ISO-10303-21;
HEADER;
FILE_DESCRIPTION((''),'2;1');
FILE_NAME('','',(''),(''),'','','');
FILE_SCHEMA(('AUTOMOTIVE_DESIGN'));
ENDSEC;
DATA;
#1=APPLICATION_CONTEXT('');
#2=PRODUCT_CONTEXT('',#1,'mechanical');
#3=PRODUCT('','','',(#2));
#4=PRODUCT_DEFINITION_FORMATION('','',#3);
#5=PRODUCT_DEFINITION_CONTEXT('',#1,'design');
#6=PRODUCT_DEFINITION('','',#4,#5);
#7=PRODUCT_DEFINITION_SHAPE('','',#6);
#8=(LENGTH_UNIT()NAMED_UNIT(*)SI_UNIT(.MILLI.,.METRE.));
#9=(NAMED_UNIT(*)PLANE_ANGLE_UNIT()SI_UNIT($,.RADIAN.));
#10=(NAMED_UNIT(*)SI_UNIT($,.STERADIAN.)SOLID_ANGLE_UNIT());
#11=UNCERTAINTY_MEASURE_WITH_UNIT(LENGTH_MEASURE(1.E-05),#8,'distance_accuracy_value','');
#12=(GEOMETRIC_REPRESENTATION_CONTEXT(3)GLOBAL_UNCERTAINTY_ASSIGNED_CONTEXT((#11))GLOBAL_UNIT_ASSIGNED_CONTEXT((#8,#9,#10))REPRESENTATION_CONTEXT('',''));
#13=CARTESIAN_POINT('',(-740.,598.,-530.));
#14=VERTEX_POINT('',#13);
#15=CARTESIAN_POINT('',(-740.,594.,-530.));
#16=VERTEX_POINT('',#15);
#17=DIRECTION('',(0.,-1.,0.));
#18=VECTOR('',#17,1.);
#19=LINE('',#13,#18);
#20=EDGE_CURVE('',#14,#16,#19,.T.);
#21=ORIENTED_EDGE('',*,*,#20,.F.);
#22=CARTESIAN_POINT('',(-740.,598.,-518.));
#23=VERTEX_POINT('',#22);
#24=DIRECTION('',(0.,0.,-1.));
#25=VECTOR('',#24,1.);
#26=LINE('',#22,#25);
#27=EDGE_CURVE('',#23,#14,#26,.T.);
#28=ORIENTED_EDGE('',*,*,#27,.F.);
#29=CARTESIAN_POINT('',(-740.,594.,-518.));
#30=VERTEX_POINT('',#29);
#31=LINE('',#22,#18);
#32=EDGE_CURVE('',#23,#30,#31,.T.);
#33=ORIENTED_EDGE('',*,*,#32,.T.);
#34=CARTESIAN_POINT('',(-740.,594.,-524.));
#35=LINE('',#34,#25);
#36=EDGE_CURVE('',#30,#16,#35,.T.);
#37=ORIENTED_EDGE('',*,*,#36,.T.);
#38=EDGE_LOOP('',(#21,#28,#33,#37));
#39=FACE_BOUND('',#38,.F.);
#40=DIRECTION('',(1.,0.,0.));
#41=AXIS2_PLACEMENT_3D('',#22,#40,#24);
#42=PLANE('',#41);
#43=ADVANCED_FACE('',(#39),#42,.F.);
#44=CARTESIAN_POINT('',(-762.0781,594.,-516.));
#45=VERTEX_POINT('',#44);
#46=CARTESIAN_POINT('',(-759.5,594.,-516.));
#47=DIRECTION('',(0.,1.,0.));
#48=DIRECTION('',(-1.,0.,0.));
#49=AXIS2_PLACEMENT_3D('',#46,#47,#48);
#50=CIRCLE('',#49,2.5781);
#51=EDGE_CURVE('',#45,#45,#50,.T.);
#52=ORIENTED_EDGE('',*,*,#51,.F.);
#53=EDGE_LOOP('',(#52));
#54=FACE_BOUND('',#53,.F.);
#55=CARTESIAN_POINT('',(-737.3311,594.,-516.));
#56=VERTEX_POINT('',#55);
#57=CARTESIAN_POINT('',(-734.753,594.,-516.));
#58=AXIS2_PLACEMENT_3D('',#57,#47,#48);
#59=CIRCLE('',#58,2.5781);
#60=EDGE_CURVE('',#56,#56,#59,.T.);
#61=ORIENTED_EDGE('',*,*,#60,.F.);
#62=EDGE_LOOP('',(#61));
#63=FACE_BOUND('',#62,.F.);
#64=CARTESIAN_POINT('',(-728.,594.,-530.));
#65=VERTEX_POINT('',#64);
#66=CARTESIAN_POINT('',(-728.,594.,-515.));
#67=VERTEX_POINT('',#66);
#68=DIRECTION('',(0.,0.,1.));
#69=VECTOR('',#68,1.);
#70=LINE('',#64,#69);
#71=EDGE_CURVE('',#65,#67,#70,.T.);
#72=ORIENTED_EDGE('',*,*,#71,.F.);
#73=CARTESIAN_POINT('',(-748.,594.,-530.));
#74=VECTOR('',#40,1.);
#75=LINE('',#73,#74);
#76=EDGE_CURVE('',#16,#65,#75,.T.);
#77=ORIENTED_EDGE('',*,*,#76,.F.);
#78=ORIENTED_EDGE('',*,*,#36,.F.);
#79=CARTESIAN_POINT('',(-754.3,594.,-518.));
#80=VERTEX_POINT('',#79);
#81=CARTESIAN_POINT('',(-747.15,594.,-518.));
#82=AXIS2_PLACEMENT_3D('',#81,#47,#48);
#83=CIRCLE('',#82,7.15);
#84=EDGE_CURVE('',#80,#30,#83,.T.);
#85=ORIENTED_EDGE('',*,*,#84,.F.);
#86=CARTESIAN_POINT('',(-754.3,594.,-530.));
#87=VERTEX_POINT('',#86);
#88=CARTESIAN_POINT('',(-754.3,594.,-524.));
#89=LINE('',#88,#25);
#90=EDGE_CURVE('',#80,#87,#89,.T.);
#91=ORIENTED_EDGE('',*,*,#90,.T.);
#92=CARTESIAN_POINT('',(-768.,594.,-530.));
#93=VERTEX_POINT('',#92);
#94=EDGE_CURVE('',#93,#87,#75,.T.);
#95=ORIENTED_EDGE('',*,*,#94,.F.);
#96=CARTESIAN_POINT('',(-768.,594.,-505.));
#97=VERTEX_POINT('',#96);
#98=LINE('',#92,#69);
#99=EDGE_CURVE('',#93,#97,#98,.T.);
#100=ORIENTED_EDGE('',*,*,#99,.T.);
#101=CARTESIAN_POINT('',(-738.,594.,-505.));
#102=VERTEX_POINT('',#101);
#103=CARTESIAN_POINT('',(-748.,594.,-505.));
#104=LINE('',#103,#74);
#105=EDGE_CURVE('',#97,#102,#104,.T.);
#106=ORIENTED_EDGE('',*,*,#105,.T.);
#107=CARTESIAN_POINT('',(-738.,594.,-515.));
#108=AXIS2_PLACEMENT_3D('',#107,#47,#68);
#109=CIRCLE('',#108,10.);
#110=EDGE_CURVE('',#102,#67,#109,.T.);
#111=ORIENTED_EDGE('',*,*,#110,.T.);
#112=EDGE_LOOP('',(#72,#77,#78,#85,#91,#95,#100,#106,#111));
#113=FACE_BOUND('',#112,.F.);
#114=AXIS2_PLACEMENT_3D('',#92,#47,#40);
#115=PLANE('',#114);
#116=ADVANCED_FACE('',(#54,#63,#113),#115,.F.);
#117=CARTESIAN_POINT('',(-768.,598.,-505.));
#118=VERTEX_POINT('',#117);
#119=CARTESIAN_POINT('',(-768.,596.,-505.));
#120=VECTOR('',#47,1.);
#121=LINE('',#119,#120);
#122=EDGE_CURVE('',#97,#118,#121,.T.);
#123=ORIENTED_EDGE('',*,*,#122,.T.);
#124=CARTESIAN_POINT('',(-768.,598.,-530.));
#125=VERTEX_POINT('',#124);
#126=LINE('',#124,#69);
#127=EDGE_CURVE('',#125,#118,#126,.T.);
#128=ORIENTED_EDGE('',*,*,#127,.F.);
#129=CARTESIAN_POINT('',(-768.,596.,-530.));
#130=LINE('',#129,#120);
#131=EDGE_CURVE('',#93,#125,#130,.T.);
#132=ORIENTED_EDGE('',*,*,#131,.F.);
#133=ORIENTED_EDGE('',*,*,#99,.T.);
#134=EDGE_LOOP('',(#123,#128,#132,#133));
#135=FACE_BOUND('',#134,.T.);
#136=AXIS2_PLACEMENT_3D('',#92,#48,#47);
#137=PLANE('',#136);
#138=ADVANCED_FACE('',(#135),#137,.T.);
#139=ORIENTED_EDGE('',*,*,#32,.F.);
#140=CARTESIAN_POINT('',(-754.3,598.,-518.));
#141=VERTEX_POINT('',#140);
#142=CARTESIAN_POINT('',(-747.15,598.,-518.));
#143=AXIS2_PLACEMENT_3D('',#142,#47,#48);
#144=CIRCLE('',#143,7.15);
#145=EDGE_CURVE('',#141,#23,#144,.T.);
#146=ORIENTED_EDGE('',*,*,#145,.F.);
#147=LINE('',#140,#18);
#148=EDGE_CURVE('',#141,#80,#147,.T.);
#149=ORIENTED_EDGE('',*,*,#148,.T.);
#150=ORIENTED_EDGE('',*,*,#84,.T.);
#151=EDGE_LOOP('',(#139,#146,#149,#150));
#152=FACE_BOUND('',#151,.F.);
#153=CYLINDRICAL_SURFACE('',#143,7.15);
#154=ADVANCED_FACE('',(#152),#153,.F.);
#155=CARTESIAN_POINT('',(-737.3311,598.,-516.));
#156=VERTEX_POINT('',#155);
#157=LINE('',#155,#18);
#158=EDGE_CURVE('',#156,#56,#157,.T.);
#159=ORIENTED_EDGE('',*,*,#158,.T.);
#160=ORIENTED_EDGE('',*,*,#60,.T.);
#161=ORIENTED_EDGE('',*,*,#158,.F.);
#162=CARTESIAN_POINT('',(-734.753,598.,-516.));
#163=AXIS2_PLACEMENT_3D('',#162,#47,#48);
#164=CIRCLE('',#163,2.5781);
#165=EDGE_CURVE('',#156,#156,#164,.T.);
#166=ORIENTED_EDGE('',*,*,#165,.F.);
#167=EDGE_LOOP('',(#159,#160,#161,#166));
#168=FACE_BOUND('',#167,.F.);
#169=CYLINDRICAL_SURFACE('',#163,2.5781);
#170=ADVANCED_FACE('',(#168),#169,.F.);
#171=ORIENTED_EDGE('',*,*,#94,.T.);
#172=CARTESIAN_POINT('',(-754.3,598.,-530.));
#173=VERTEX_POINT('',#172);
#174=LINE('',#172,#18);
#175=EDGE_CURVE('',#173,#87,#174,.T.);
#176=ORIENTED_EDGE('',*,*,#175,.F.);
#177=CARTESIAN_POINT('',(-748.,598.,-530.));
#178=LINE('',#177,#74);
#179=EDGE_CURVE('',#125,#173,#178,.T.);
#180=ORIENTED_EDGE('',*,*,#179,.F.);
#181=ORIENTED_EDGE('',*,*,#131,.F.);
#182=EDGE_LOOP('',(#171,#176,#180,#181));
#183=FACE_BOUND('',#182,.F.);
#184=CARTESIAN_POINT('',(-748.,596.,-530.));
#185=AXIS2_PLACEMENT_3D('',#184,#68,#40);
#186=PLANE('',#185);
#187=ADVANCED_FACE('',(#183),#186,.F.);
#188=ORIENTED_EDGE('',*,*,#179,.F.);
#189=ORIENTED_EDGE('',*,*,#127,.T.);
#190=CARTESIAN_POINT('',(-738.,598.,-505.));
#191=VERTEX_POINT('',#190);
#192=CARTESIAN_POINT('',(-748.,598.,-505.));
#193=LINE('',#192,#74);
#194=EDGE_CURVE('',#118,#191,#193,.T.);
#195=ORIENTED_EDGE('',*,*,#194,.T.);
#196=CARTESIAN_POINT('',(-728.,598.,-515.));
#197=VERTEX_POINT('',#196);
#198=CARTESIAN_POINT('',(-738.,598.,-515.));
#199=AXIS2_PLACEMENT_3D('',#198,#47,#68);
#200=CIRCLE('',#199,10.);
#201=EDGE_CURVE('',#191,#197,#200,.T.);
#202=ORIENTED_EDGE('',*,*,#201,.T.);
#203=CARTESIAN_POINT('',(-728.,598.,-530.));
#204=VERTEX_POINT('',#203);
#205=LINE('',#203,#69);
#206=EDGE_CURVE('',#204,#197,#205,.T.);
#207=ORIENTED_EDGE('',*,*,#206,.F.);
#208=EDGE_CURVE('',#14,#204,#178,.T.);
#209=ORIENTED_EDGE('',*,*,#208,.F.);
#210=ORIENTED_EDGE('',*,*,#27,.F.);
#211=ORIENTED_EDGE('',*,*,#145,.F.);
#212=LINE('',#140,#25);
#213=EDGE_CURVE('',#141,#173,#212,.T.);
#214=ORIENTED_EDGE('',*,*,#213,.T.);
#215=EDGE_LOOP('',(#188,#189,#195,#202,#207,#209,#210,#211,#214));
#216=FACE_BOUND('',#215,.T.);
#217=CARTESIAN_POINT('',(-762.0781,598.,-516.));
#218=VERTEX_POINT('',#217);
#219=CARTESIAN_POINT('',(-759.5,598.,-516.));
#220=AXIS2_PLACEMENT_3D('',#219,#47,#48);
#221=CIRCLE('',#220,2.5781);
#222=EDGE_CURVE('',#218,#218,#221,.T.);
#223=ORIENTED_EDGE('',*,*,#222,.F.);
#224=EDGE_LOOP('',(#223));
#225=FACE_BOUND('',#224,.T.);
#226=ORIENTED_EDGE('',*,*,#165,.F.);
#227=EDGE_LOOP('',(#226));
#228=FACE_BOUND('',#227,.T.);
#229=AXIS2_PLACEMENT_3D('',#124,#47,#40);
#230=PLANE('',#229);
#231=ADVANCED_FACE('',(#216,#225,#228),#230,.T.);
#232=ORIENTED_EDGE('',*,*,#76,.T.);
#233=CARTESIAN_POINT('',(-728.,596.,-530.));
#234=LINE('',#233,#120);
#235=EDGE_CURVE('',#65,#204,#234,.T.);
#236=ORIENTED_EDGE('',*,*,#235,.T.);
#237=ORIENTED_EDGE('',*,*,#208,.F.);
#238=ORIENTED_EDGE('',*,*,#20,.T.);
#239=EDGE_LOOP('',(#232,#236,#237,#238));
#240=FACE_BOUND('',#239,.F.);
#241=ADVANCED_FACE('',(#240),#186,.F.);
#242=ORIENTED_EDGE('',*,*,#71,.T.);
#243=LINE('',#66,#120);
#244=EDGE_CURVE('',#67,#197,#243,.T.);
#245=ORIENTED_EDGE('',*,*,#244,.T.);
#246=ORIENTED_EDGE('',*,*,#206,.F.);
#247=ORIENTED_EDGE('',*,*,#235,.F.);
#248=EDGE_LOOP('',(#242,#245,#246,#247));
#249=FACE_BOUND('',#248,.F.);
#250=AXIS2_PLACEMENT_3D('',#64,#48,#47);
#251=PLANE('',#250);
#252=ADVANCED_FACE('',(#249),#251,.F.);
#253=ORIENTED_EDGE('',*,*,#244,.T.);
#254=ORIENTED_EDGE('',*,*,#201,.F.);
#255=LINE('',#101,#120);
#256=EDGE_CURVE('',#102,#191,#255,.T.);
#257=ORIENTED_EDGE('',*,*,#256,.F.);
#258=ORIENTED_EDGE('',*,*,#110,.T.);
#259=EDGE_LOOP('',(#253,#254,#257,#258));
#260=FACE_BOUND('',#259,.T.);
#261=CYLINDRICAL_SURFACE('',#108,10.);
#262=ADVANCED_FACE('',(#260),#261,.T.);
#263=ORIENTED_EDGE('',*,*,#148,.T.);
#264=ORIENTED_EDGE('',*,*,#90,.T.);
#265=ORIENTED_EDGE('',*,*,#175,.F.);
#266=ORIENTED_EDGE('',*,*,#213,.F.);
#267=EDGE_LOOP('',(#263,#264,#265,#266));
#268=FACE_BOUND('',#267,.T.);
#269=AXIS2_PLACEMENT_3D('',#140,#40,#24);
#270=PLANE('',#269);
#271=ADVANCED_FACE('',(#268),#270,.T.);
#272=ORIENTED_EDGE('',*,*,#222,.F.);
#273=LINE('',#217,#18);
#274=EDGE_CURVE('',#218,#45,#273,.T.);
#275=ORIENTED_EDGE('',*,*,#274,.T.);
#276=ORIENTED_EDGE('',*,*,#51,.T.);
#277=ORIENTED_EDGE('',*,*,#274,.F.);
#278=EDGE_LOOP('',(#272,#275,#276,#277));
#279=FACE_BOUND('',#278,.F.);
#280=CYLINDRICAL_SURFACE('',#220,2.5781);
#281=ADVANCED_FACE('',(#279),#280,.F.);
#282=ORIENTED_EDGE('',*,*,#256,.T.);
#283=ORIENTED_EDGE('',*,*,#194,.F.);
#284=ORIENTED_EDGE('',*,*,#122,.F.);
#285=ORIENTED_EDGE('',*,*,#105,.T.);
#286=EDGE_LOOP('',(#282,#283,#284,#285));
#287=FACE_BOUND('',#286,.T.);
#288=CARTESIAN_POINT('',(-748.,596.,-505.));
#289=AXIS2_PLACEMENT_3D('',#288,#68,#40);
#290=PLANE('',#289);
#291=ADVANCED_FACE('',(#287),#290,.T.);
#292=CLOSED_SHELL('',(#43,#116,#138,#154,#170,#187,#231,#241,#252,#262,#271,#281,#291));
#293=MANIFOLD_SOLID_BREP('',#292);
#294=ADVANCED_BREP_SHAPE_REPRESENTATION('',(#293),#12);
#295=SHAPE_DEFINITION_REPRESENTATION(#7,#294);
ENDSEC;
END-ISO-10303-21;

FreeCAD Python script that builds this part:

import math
import FreeCAD as App
import Part
import Sketcher

V = App.Vector
Q = App.Units.Quantity


def edges_at(feature, points):
    """Names of the edges that pass closest to the given points."""
    edges = feature.Shape.Edges
    near = lambda p: min(range(len(edges)), key=lambda i: edges[i].distToShape(Part.Vertex(*p))[0])
    return sorted({f"Edge{near(p) + 1}" for p in points})

doc = App.newDocument("Part")
body = doc.addObject("PartDesign::Body", "Body")

sketch1 = doc.addObject("Sketcher::SketchObject", "Sketch")
body.addObject(sketch1)
sketch1.AttachmentSupport = (doc.XY_Plane, [""])
sketch1.MapMode = "FlatFace"
sketch1.AttachmentOffset = App.Placement(V(0, 0, -530), App.Rotation())
sketch1.addGeometry([
    Part.LineSegment(V(-768, 598, 0), V(-768, 594, 0)),
    Part.LineSegment(V(-768, 594, 0), V(-728, 594, 0)),
    Part.LineSegment(V(-728, 594, 0), V(-728, 598, 0)),
    Part.LineSegment(V(-728, 598, 0), V(-768, 598, 0)),
], False)
sketch1.addConstraint([
    Sketcher.Constraint("Coincident", 0, 2, 1, 1),
    Sketcher.Constraint("Coincident", 1, 2, 2, 1),
    Sketcher.Constraint("Coincident", 2, 2, 3, 1),
    Sketcher.Constraint("Coincident", 3, 2, 0, 1),
    Sketcher.Constraint("Vertical", 0),
    Sketcher.Constraint("Horizontal", 1),
    Sketcher.Constraint("Vertical", 2),
    Sketcher.Constraint("Horizontal", 3),
    Sketcher.Constraint("DistanceX", 1, 1, 1, 2, Q("40 mm")),
    Sketcher.Constraint("DistanceY", 0, 2, 0, 1, Q("4 mm")),
    Sketcher.Constraint("DistanceX", 0, 2, -1, 1, Q("768 mm")),
    Sketcher.Constraint("DistanceY", -1, 1, 0, 2, Q("594 mm")),
])
pad1 = doc.addObject("PartDesign::Pad", "Pad")
body.addObject(pad1)
pad1.Profile = sketch1
pad1.Length = 25

sketch2 = doc.addObject("Sketcher::SketchObject", "Sketch001")
body.addObject(sketch2)
sketch2.AttachmentSupport = (doc.XZ_Plane, [""])
sketch2.MapMode = "FlatFace"
sketch2.AttachmentOffset = App.Placement(V(0, 0, -598), App.Rotation())
sketch2.addGeometry([
    Part.Circle(V(-734.753, -516, 0), V(0, 0, 1), 2.5781),
    Part.Circle(V(-759.5, -516, 0), V(0, 0, 1), 2.5781),
    Part.ArcOfCircle(Part.Circle(V(-747.15, -518, 0), V(0, 0, 1), 7.15), math.radians(0), math.radians(180)),
    Part.LineSegment(V(-740, -518, 0), V(-740, -530, 0)),
    Part.LineSegment(V(-740, -530, 0), V(-754.3, -530, 0)),
    Part.LineSegment(V(-754.3, -530, 0), V(-754.3, -518, 0)),
], False)
sketch2.addConstraint([
    Sketcher.Constraint("Tangent", 2, 1, 3, 1),
    Sketcher.Constraint("Coincident", 3, 2, 4, 1),
    Sketcher.Constraint("Coincident", 4, 2, 5, 1),
    Sketcher.Constraint("Tangent", 5, 2, 2, 2),
    Sketcher.Constraint("Vertical", 3),
    Sketcher.Constraint("Horizontal", 4),
    Sketcher.Constraint("Vertical", 5),
    Sketcher.Constraint("Equal", 0, 1),
    Sketcher.Constraint("Horizontal", 0, 3, 1, 3),
    Sketcher.Constraint("DistanceY", 3, 2, 3, 1, Q("12 mm")),
    Sketcher.Constraint("Radius", 2, Q("7.15 mm")),
    Sketcher.Constraint("DistanceY", 0, 3, -1, 1, Q("516 mm")),
    Sketcher.Constraint("DistanceY", 2, 3, -1, 1, Q("518 mm")),
    Sketcher.Constraint("DistanceX", 2, 1, -1, 1, Q("740 mm")),
    Sketcher.Constraint("Diameter", 0, Q("5.1562 mm")),
    Sketcher.Constraint("DistanceX", 1, 3, -1, 1, Q("759.5 mm")),
    Sketcher.Constraint("DistanceX", 0, 3, -1, 1, Q("734.753 mm")),
])
pocket1 = doc.addObject("PartDesign::Pocket", "Pocket")
body.addObject(pocket1)
pocket1.Profile = sketch2
pocket1.Type = "ThroughAll"
pocket1.Reversed = True
doc.recompute()

fillet = doc.addObject("PartDesign::Fillet", "Fillet")
body.addObject(fillet)
fillet.Base = (pocket1, edges_at(pocket1, [(-728, 596, -505)]))
fillet.Radius = 10

doc.recompute()
